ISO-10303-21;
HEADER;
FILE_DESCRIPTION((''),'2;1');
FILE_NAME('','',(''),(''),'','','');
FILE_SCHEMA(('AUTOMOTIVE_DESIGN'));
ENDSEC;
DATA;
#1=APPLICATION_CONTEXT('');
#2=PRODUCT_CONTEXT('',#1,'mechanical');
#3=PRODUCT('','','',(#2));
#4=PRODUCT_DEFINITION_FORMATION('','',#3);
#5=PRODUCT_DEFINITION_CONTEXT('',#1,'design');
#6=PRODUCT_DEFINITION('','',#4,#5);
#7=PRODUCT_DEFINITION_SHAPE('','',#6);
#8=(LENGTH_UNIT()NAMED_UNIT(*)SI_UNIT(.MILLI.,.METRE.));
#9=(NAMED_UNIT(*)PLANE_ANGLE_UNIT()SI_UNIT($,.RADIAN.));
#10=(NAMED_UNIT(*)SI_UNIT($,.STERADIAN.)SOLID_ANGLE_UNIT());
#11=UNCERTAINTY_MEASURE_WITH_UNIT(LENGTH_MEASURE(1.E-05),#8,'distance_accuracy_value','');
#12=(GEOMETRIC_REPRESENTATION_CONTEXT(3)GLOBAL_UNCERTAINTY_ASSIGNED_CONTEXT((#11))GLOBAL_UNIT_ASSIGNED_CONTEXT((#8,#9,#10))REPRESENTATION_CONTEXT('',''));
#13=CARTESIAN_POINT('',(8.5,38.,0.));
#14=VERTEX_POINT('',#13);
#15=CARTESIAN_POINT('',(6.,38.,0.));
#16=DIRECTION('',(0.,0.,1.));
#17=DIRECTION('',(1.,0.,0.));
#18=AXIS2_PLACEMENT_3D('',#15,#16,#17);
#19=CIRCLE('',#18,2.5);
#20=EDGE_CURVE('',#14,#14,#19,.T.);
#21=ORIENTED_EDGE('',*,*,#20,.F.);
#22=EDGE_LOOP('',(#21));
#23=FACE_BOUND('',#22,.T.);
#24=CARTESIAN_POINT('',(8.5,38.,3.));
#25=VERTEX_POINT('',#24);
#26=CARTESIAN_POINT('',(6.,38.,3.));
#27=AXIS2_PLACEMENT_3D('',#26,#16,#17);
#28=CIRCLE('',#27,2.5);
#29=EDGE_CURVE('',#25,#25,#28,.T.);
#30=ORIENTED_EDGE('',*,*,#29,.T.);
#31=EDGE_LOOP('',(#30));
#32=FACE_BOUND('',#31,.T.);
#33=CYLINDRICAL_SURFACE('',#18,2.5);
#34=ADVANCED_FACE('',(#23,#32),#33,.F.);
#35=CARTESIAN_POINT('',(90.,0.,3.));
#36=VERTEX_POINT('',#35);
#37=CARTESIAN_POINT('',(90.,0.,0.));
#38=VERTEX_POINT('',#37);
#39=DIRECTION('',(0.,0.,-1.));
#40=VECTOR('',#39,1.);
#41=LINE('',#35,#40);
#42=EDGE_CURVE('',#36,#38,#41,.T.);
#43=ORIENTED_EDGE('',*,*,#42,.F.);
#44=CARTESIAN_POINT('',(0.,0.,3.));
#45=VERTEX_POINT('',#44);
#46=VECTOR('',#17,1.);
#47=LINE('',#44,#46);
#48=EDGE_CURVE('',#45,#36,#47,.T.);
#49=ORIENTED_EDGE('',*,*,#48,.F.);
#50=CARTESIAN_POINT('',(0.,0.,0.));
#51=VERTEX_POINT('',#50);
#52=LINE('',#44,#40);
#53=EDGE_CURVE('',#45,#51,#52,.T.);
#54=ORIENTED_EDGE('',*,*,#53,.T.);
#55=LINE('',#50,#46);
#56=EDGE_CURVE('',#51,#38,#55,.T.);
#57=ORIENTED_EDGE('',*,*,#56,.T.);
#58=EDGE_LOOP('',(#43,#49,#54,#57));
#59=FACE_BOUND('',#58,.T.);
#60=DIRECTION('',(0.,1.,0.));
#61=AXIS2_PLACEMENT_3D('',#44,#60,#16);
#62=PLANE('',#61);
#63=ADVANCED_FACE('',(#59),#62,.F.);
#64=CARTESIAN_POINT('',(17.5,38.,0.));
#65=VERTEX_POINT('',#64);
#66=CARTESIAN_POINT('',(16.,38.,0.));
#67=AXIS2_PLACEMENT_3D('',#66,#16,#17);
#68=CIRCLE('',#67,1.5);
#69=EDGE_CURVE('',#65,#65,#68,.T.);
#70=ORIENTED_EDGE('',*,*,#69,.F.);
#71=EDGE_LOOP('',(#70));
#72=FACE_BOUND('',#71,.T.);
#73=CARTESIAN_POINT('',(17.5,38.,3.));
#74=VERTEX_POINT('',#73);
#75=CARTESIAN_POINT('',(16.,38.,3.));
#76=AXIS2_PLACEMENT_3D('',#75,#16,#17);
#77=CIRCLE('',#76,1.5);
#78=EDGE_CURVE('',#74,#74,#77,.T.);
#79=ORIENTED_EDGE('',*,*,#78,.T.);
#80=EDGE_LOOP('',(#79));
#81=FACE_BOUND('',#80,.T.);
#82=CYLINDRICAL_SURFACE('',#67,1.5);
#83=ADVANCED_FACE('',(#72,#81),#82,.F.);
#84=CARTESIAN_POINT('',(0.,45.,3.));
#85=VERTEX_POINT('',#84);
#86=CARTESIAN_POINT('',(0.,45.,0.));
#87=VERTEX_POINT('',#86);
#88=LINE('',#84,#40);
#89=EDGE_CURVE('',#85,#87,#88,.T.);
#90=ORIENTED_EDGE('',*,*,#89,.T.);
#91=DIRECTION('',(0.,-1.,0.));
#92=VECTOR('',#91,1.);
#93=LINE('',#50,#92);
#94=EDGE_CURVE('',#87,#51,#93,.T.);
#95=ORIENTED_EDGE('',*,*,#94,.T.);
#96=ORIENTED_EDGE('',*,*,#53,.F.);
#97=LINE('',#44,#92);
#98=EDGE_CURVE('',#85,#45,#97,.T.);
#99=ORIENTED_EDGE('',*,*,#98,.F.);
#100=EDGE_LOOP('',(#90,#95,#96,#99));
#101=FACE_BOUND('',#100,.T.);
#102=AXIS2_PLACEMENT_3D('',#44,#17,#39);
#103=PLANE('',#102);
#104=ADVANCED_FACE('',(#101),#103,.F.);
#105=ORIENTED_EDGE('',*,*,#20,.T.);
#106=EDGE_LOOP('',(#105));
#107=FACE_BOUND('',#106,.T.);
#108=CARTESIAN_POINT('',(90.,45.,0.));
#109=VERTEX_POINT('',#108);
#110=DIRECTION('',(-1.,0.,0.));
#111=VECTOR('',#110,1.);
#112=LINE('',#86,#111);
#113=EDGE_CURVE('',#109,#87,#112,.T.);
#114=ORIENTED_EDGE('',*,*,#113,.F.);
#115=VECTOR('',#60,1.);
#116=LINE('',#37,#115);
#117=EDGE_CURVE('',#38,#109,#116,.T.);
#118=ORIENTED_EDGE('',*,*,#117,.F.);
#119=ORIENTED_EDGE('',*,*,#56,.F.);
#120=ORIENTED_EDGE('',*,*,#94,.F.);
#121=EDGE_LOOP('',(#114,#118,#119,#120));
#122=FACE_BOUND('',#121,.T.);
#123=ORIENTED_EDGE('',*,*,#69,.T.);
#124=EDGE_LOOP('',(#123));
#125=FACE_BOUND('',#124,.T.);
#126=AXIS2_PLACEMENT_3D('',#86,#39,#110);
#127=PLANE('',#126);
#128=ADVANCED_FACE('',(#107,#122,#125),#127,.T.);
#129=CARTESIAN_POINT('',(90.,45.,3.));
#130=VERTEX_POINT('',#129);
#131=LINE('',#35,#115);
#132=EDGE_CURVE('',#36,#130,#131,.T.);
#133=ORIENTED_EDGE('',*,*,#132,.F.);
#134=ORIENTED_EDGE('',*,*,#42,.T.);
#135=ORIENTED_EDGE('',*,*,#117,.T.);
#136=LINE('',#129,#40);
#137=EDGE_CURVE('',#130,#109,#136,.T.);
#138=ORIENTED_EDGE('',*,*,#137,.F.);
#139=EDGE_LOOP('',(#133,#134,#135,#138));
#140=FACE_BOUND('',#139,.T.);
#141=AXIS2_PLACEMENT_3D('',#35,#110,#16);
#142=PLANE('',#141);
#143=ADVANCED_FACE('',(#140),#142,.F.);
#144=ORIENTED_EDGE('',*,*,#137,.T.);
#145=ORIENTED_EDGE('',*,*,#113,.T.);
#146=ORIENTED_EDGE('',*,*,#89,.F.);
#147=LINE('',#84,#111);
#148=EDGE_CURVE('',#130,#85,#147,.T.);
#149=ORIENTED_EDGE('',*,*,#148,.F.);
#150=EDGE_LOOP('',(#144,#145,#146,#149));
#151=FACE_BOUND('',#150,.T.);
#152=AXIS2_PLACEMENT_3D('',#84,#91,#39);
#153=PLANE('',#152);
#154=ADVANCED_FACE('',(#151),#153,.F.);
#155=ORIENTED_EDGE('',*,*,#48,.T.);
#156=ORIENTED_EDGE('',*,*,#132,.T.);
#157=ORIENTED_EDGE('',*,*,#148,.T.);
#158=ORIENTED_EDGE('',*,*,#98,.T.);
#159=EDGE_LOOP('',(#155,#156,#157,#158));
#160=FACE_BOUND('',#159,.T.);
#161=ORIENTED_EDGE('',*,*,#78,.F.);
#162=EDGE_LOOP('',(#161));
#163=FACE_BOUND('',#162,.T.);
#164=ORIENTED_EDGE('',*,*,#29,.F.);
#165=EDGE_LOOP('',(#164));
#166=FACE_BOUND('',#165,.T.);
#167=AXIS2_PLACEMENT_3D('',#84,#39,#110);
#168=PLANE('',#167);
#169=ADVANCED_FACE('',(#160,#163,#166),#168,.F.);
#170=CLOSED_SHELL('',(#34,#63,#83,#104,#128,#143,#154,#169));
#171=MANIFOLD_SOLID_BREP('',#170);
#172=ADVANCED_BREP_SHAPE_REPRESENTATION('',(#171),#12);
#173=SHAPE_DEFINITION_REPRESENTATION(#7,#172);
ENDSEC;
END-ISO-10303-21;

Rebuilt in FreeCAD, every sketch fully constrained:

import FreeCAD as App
import Part
import Sketcher


def add_polygon(sketch, points):
    """Adds a closed chain of lines whose ends are joined by coincident constraints."""
    first, n = sketch.GeometryCount, len(points)
    for a, b in zip(points, points[1:] + points[:1]):
        sketch.addGeometry(Part.LineSegment(App.Vector(*a, 0), App.Vector(*b, 0)), False)
    for i in range(n):
        sketch.addConstraint(Sketcher.Constraint("Coincident", first + i, 2, first + (i + 1) % n, 1))

doc = App.newDocument("Part")
body = doc.addObject("PartDesign::Body", "Body")

# Sketch on XY plane
sketch1 = body.newObject("Sketcher::SketchObject", "Sketch")
sketch1.AttachmentSupport = (doc.getObject("XY_Plane"), [""])
sketch1.MapMode = "FlatFace"
add_polygon(sketch1, [(0, 45), (0, 0), (90, 0), (90, 45)])  # lines 0-3
sketch1.addConstraint([
    Sketcher.Constraint("Vertical", 0),
    Sketcher.Constraint("Horizontal", 1),
    Sketcher.Constraint("Vertical", 2),
    Sketcher.Constraint("Horizontal", 3),
    Sketcher.Constraint("Coincident", 0, 2, -1, 1),
    Sketcher.Constraint("DistanceX", 1, 1, 1, 2, 90.0),
    Sketcher.Constraint("DistanceY", 0, 2, 0, 1, 45.0),
])
pad1 = body.newObject("PartDesign::Pad", "Pad")
pad1.Profile = sketch1
pad1.Length = 3

# Sketch on XY plane
sketch2 = body.newObject("Sketcher::SketchObject", "Sketch001")
sketch2.AttachmentSupport = (doc.getObject("XY_Plane"), [""])
sketch2.MapMode = "FlatFace"
sketch2.AttachmentOffset = App.Placement(App.Vector(0, 0, 3), App.Rotation())
sketch2.addGeometry(Part.Circle(App.Vector(6, 38, 0), App.Vector(0, 0, 1), 2.5), False)
sketch2.addConstraint([
    Sketcher.Constraint("Diameter", 0, 5.0),
    Sketcher.Constraint("DistanceX", -1, 1, 0, 3, 6.0),
    Sketcher.Constraint("DistanceY", -1, 1, 0, 3, 38.0),
])
pocket1 = body.newObject("PartDesign::Pocket", "Pocket")
pocket1.Profile = sketch2
pocket1.Type = "ThroughAll"

# Sketch on XY plane
sketch3 = body.newObject("Sketcher::SketchObject", "Sketch002")
sketch3.AttachmentSupport = (doc.getObject("XY_Plane"), [""])
sketch3.MapMode = "FlatFace"
sketch3.AttachmentOffset = App.Placement(App.Vector(0, 0, 3), App.Rotation())
sketch3.addGeometry(Part.Circle(App.Vector(16, 38, 0), App.Vector(0, 0, 1), 1.5), False)
sketch3.addConstraint([
    Sketcher.Constraint("Diameter", 0, 3.0),
    Sketcher.Constraint("DistanceX", -1, 1, 0, 3, 16.0),
    Sketcher.Constraint("DistanceY", -1, 1, 0, 3, 38.0),
])
pocket2 = body.newObject("PartDesign::Pocket", "Pocket001")
pocket2.Profile = sketch3
pocket2.Type = "ThroughAll"

doc.recompute()
